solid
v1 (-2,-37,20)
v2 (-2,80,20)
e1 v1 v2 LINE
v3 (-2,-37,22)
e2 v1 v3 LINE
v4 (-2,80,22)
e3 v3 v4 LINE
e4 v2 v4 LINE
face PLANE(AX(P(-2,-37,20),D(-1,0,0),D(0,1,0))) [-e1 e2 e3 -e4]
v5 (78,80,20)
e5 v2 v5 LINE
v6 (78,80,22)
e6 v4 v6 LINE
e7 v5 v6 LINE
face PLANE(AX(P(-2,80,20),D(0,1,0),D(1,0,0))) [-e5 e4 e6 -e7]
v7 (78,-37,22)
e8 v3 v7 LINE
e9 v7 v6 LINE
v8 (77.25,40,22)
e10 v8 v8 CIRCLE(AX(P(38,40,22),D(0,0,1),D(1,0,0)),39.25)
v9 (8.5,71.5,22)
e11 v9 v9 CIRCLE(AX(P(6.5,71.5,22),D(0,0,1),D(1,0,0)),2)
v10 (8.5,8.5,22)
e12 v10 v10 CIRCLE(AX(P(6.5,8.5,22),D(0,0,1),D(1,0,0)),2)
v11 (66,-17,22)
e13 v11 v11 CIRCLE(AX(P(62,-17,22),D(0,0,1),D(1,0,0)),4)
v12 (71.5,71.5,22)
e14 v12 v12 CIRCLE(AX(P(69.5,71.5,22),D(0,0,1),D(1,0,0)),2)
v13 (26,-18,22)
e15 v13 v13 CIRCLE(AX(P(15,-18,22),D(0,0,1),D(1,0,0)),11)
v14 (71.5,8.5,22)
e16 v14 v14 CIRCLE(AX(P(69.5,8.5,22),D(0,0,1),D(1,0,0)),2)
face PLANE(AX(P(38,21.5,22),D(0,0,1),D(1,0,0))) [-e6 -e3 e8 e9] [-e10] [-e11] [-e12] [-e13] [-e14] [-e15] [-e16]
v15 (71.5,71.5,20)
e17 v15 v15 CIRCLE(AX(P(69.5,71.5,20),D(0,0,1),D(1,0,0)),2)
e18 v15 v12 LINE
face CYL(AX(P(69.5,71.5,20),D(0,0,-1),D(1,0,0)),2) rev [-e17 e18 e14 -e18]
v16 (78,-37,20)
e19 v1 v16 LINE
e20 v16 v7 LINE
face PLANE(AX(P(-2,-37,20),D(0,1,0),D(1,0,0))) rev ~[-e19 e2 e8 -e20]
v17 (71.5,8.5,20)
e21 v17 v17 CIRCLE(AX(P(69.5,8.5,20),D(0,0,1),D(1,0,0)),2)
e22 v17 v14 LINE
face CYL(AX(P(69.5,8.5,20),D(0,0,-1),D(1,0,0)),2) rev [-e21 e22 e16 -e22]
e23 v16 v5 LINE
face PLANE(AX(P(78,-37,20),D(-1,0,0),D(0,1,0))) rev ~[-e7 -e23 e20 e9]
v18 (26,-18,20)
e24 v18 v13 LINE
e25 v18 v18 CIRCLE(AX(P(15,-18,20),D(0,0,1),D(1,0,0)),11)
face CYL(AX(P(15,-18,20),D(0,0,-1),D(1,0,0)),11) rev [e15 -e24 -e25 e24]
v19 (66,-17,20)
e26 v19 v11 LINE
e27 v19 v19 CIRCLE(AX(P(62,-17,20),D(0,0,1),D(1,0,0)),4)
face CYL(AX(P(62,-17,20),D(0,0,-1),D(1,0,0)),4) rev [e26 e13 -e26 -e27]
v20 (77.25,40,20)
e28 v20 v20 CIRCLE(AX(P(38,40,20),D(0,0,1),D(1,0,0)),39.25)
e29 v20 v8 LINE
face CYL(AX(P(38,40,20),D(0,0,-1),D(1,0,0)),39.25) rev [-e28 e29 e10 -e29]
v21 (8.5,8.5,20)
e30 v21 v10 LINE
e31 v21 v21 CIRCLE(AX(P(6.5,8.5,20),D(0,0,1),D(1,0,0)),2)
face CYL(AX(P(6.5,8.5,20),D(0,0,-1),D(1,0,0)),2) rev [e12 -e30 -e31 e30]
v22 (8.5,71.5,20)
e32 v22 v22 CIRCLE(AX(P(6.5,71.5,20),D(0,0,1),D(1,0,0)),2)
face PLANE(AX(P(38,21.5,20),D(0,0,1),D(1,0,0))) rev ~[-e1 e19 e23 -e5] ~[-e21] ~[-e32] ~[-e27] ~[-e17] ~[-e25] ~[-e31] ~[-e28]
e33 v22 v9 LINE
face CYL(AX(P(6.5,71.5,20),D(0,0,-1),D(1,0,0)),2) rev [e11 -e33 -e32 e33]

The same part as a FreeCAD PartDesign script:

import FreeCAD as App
import Part
import Sketcher


def add_polygon(sketch, points):
    """Adds a closed chain of lines whose ends are joined by coincident constraints."""
    first, n = sketch.GeometryCount, len(points)
    for a, b in zip(points, points[1:] + points[:1]):
        sketch.addGeometry(Part.LineSegment(App.Vector(*a, 0), App.Vector(*b, 0)), False)
    for i in range(n):
        sketch.addConstraint(Sketcher.Constraint("Coincident", first + i, 2, first + (i + 1) % n, 1))

doc = App.newDocument("Part")
body = doc.addObject("PartDesign::Body", "Body")

sketch1 = body.newObject("Sketcher::SketchObject", "Sketch")
sketch1.AttachmentSupport = (doc.getObject("XY_Plane"), [""])
sketch1.MapMode = "FlatFace"
sketch1.AttachmentOffset = App.Placement(App.Vector(0, 0, 20), App.Rotation())
sketch1.addGeometry(Part.Circle(App.Vector(63, 63, 0), App.Vector(0, 0, 1), 2), False)
sketch1.addConstraint(Sketcher.Constraint("Diameter", 0, 4.0))
sketch1.addConstraint(Sketcher.Constraint("DistanceX", -1, 1, 0, 3, 63.0))
sketch1.addConstraint(Sketcher.Constraint("DistanceY", -1, 1, 0, 3, 63.0))
pad1 = body.newObject("PartDesign::Pad", "Pad")
pad1.Profile = sketch1
pad1.Length = 2
body2 = doc.addObject("PartDesign::Body", "Body001")

sketch2 = body2.newObject("Sketcher::SketchObject", "Sketch001")
sketch2.AttachmentSupport = (doc.getObject("XY_Plane001"), [""])
sketch2.MapMode = "FlatFace"
sketch2.AttachmentOffset = App.Placement(App.Vector(0, 0, 20), App.Rotation())
sketch2.addGeometry(Part.Circle(App.Vector(0, 63, 0), App.Vector(0, 0, 1), 2), False)
sketch2.addConstraint(Sketcher.Constraint("PointOnObject", 0, 3, -2))
sketch2.addConstraint(Sketcher.Constraint("Diameter", 0, 4.0))
sketch2.addConstraint(Sketcher.Constraint("DistanceY", -1, 1, 0, 3, 63.0))
pad2 = body2.newObject("PartDesign::Pad", "Pad001")
pad2.Profile = sketch2
pad2.Length = 2
body3 = doc.addObject("PartDesign::Body", "Body002")

sketch3 = body3.newObject("Sketcher::SketchObject", "Sketch002")
sketch3.AttachmentSupport = (doc.getObject("XY_Plane002"), [""])
sketch3.MapMode = "FlatFace"
sketch3.AttachmentOffset = App.Placement(App.Vector(0, 0, 20), App.Rotation())
sketch3.addGeometry(Part.Circle(App.Vector(63, 0, 0), App.Vector(0, 0, 1), 2), False)
sketch3.addConstraint(Sketcher.Constraint("PointOnObject", 0, 3, -1))
sketch3.addConstraint(Sketcher.Constraint("Diameter", 0, 4.0))
sketch3.addConstraint(Sketcher.Constraint("DistanceX", -1, 1, 0, 3, 63.0))
pad3 = body3.newObject("PartDesign::Pad", "Pad002")
pad3.Profile = sketch3
pad3.Length = 2
body4 = doc.addObject("PartDesign::Body", "Body003")
body4.AllowCompound = True

sketch4 = body4.newObject("Sketcher::SketchObject", "Sketch003")
sketch4.AttachmentSupport = (doc.getObject("XY_Plane003"), [""])
sketch4.MapMode = "FlatFace"
sketch4.AttachmentOffset = App.Placement(App.Vector(0, 0, 20), App.Rotation())
sketch4.addGeometry(Part.Circle(App.Vector(0, 0, 0), App.Vector(0, 0, 1), 2), False)
sketch4.addConstraint(Sketcher.Constraint("Coincident", 0, 3, -1, 1))
sketch4.addConstraint(Sketcher.Constraint("Diameter", 0, 4.0))
pad4 = body4.newObject("PartDesign::Pad", "Pad003")
pad4.Profile = sketch4
pad4.Length = 2
doc.recompute()

boolean = body4.newObject("PartDesign::Boolean", "Boolean")
boolean.Type = "Fuse"
boolean.addObjects([body])
doc.recompute()

boolean2 = body4.newObject("PartDesign::Boolean", "Boolean001")
boolean2.Type = "Fuse"
boolean2.addObjects([body2])
doc.recompute()

boolean3 = body4.newObject("PartDesign::Boolean", "Boolean002")
boolean3.Type = "Fuse"
boolean3.addObjects([body3])
body5 = doc.addObject("PartDesign::Body", "Body004")
body5.AllowCompound = True
doc.recompute()

body4.Placement = App.Placement(App.Vector(6.5, 6.5, 0), App.Rotation(App.Vector(0, 0, 1), 0))
boolean4 = body5.newObject("PartDesign::Boolean", "Boolean003")
boolean4.Type = "Fuse"
boolean4.addObjects([body4])
body6 = doc.addObject("PartDesign::Body", "Body005")

sketch5 = body6.newObject("Sketcher::SketchObject", "Sketch004")
sketch5.AttachmentSupport = (doc.getObject("XY_Plane005"), [""])
sketch5.MapMode = "FlatFace"
sketch5.AttachmentOffset = App.Placement(App.Vector(0, 0, 20), App.Rotation())
sketch5.addGeometry(Part.Circle(App.Vector(15, -20, 0), App.Vector(0, 0, 1), 11), False)
sketch5.addConstraint(Sketcher.Constraint("Diameter", 0, 22.0))
sketch5.addConstraint(Sketcher.Constraint("DistanceX", -1, 1, 0, 3, 15.0))
sketch5.addConstraint(Sketcher.Constraint("DistanceY", 0, 3, -1, 1, 20.0))
pad5 = body6.newObject("PartDesign::Pad", "Pad004")
pad5.Profile = sketch5
pad5.Length = 2
body7 = doc.addObject("PartDesign::Body", "Body006")

sketch6 = body7.newObject("Sketcher::SketchObject", "Sketch005")
sketch6.AttachmentSupport = (doc.getObject("XY_Plane006"), [""])
sketch6.MapMode = "FlatFace"
sketch6.AttachmentOffset = App.Placement(App.Vector(0, 0, 20), App.Rotation())
sketch6.addGeometry(Part.Circle(App.Vector(62, -19, 0), App.Vector(0, 0, 1), 4), False)
sketch6.addConstraint(Sketcher.Constraint("Diameter", 0, 8.0))
sketch6.addConstraint(Sketcher.Constraint("DistanceX", -1, 1, 0, 3, 62.0))
sketch6.addConstraint(Sketcher.Constraint("DistanceY", 0, 3, -1, 1, 19.0))
pad6 = body7.newObject("PartDesign::Pad", "Pad005")
pad6.Profile = sketch6
pad6.Length = 2
body8 = doc.addObject("PartDesign::Body", "Body007")
body8.AllowCompound = True

sketch7 = body8.newObject("Sketcher::SketchObject", "Sketch006")
sketch7.AttachmentSupport = (doc.getObject("XY_Plane007"), [""])
sketch7.MapMode = "FlatFace"
sketch7.AttachmentOffset = App.Placement(App.Vector(0, 0, 20), App.Rotation())
sketch7.addGeometry(Part.Circle(App.Vector(38, 38, 0), App.Vector(0, 0, 1), 39.25), False)
sketch7.addConstraint(Sketcher.Constraint("Diameter", 0, 78.5))
sketch7.addConstraint(Sketcher.Constraint("DistanceX", -1, 1, 0, 3, 38.0))
sketch7.addConstraint(Sketcher.Constraint("DistanceY", -1, 1, 0, 3, 38.0))
pad7 = body8.newObject("PartDesign::Pad", "Pad006")
pad7.Profile = sketch7
pad7.Length = 2
doc.recompute()

boolean5 = body8.newObject("PartDesign::Boolean", "Boolean004")
boolean5.Type = "Fuse"
boolean5.addObjects([body5])
doc.recompute()

boolean6 = body8.newObject("PartDesign::Boolean", "Boolean005")
boolean6.Type = "Fuse"
boolean6.addObjects([body6])
doc.recompute()

boolean7 = body8.newObject("PartDesign::Boolean", "Boolean006")
boolean7.Type = "Fuse"
boolean7.addObjects([body7])
body9 = doc.addObject("PartDesign::Body", "Body008")

sketch8 = body9.newObject("Sketcher::SketchObject", "Sketch007")
sketch8.AttachmentSupport = (doc.getObject("XY_Plane008"), [""])
sketch8.MapMode = "FlatFace"
sketch8.AttachmentOffset = App.Placement(App.Vector(0, 0, 20), App.Rotation())
add_polygon(sketch8, [(-2, 78), (-2, -39), (78, -39), (78, 78)])
sketch8.addConstraint(Sketcher.Constraint("Vertical", 0))
sketch8.addConstraint(Sketcher.Constraint("Horizontal", 1))
sketch8.addConstraint(Sketcher.Constraint("Vertical", 2))
sketch8.addConstraint(Sketcher.Constraint("Horizontal", 3))
sketch8.addConstraint(Sketcher.Constraint("DistanceX", 1, 1, 1, 2, 80.0))
sketch8.addConstraint(Sketcher.Constraint("DistanceY", 0, 2, 0, 1, 117.0))
sketch8.addConstraint(Sketcher.Constraint("DistanceX", 0, 2, -1, 1, 2.0))
sketch8.addConstraint(Sketcher.Constraint("DistanceY", 0, 2, -1, 1, 39.0))
pad8 = body9.newObject("PartDesign::Pad", "Pad007")
pad8.Profile = sketch8
pad8.Length = 2
doc.recompute()

boolean8 = body9.newObject("PartDesign::Boolean", "Boolean007")
boolean8.Type = "Cut"
boolean8.addObjects([body8])
body10 = doc.addObject("PartDesign::Body", "Body009")
doc.recompute()

body9.Placement = App.Placement(App.Vector(0, 2, 0), App.Rotation(App.Vector(0, 0, 1), 0))
boolean9 = body10.newObject("PartDesign::Boolean", "Boolean008")
boolean9.Type = "Fuse"
boolean9.addObjects([body9])

doc.recompute()
